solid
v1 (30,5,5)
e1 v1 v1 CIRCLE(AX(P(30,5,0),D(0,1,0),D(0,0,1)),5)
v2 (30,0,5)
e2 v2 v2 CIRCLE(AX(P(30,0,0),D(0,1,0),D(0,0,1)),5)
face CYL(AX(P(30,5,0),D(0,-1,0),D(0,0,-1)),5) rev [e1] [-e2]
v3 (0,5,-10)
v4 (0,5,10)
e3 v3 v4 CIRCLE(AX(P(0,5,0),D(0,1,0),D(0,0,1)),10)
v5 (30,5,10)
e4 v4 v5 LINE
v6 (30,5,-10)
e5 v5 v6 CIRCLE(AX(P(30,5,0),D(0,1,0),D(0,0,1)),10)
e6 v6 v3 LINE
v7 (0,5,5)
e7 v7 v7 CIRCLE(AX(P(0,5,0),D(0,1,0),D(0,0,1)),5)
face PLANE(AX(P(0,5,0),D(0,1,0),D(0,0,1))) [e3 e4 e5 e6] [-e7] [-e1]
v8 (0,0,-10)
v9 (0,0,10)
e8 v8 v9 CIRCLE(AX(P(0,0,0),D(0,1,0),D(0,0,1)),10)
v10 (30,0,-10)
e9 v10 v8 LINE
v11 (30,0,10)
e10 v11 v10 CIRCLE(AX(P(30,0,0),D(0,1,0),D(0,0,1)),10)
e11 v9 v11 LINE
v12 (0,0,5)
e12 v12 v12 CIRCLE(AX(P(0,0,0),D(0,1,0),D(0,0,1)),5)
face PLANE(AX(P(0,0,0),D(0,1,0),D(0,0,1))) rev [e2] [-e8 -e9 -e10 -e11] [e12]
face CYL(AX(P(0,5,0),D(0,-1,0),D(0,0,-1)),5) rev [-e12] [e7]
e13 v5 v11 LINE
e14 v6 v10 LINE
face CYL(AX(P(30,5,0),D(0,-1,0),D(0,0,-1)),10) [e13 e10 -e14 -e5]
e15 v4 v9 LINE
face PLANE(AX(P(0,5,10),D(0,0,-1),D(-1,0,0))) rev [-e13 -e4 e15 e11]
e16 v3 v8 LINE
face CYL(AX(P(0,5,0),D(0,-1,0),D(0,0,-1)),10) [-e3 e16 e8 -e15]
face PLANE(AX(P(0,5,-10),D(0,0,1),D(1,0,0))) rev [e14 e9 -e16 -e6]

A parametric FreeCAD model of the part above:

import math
import FreeCAD as App
import Part
import Sketcher

V = App.Vector

doc = App.newDocument("Part")
body = doc.addObject("PartDesign::Body", "Body")

sketch1 = body.newObject("Sketcher::SketchObject", "Sketch")
sketch1.AttachmentSupport = (doc.getObject("XZ_Plane"), [""])
sketch1.MapMode = "FlatFace"
sketch1.addGeometry(Part.LineSegment(V(30, -10, 0), V(0, -10, 0)), False)
sketch1.addGeometry(Part.ArcOfCircle(Part.Circle(V(0, 0, 0), V(0, 0, 1), 10), math.radians(90), math.radians(270)), False)
sketch1.addGeometry(Part.LineSegment(V(0, 10, 0), V(30, 10, 0)), False)
sketch1.addGeometry(Part.ArcOfCircle(Part.Circle(V(30, 0, 0), V(0, 0, 1), 10), math.radians(-90), math.radians(90)), False)
sketch1.addGeometry(Part.Circle(V(30, 0, 0), V(0, 0, 1), 5), False)
sketch1.addGeometry(Part.Circle(V(0, 0, 0), V(0, 0, 1), 5), False)
sketch1.addConstraint(Sketcher.Constraint("Tangent", 0, 2, 1, 2))
sketch1.addConstraint(Sketcher.Constraint("Tangent", 1, 1, 2, 1))
sketch1.addConstraint(Sketcher.Constraint("Tangent", 2, 2, 3, 2))
sketch1.addConstraint(Sketcher.Constraint("Tangent", 3, 1, 0, 1))
sketch1.addConstraint(Sketcher.Constraint("Horizontal", 0))
sketch1.addConstraint(Sketcher.Constraint("Horizontal", 2))
sketch1.addConstraint(Sketcher.Constraint("Coincident", 1, 3, -1, 1))
sketch1.addConstraint(Sketcher.Constraint("Coincident", 5, 3, -1, 1))
sketch1.addConstraint(Sketcher.Constraint("Coincident", 4, 3, 3, 3))
sketch1.addConstraint(Sketcher.Constraint("Equal", 4, 5))
sketch1.addConstraint(Sketcher.Constraint("Diameter", 4, 10.0))
sketch1.addConstraint(Sketcher.Constraint("Radius", 1, 10.0))
sketch1.addConstraint(Sketcher.Constraint("DistanceX", 0, 2, 0, 1, 30.0))
pad1 = body.newObject("PartDesign::Pad", "Pad")
pad1.Profile = sketch1
pad1.Length = 5
pad1.Reversed = True

doc.recompute()
